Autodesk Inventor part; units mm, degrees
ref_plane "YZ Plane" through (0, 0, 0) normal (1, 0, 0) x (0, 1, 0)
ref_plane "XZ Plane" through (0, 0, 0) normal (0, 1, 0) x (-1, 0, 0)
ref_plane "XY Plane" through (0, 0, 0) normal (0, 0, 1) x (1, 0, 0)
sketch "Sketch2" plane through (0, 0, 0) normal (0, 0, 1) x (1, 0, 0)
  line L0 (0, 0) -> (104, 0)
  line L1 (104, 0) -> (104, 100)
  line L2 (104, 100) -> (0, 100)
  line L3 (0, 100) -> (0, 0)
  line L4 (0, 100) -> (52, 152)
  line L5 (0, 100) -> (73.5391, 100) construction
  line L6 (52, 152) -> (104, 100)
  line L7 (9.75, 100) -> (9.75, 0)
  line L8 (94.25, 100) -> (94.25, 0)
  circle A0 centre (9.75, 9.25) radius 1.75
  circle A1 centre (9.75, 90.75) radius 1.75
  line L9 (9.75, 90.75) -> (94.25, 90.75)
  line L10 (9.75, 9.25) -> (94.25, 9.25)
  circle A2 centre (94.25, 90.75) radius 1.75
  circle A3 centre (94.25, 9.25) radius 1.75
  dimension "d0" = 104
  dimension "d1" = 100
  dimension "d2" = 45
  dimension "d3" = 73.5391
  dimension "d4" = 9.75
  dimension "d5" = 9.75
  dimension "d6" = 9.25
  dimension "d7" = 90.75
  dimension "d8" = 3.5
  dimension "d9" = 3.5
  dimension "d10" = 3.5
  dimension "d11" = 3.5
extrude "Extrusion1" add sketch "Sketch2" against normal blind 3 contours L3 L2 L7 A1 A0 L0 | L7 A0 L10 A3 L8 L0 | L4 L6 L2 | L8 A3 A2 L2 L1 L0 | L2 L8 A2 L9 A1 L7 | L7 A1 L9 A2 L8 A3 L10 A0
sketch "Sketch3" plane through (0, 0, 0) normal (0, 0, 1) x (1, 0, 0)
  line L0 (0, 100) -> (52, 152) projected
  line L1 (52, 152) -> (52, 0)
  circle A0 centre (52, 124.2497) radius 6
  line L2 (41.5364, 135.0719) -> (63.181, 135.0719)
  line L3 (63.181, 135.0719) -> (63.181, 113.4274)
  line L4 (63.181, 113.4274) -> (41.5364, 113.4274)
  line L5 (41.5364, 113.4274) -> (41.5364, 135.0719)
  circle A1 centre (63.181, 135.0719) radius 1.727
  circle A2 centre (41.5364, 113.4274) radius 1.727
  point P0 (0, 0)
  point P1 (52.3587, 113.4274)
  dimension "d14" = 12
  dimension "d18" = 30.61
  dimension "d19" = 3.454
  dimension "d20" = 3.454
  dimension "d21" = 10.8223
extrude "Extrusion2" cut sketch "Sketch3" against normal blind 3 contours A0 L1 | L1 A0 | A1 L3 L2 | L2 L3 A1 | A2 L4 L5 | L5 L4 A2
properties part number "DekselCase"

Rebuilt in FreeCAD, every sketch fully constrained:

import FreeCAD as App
import Part
import Sketcher
Q = App.Units.Quantity


def add_polygon(sketch, points):
    """Adds a closed chain of lines whose ends are joined by coincident constraints."""
    first, n = sketch.GeometryCount, len(points)
    for a, b in zip(points, points[1:] + points[:1]):
        sketch.addGeometry(Part.LineSegment(App.Vector(*a, 0), App.Vector(*b, 0)), False)
    for i in range(n):
        sketch.addConstraint(Sketcher.Constraint("Coincident", first + i, 2, first + (i + 1) % n, 1))

doc = App.newDocument("Part")
params = doc.addObject("Spreadsheet::Sheet", "Params")
for row, (alias, value) in enumerate([
    ("sketch1_diameter", "3.5 mm"),
    ("sketch1_width", "104 mm"),
    ("sketch1_height", "100 mm"),
    ("pad1_length", "3 mm"),
    ("sketch2_diameter", "12 mm"),
    ("pocket1_length", "3 mm"),
], start=1):
    params.set(f"A{row}", alias)
    params.set(f"B{row}", "=" + value)
    params.setAlias(f"B{row}", alias)

body = doc.addObject("PartDesign::Body", "Body")

# Sketch on XY plane
sketch1 = body.newObject("Sketcher::SketchObject", "Sketch")
sketch1.AttachmentSupport = (doc.getObject("XY_Plane"), [""])
sketch1.MapMode = "FlatFace"
add_polygon(sketch1, [(0, 100), (0, 0), (104, 0), (104, 100), (52, 152)])  # lines 0-4
sketch1.addGeometry(Part.Circle(App.Vector(9.8, 90.8, 0), App.Vector(0, 0, 1), 1.8), False)  # 5
sketch1.addGeometry(Part.Circle(App.Vector(9.8, 9.2, 0), App.Vector(0, 0, 1), 1.8), False)  # 6
sketch1.addGeometry(Part.Circle(App.Vector(94.2, 90.8, 0), App.Vector(0, 0, 1), 1.8), False)  # 7
sketch1.addGeometry(Part.Circle(App.Vector(94.2, 9.2, 0), App.Vector(0, 0, 1), 1.8), False)  # 8
sketch1.addConstraint(Sketcher.Constraint("Vertical", 0))
sketch1.addConstraint(Sketcher.Constraint("Horizontal", 1))
sketch1.addConstraint(Sketcher.Constraint("Vertical", 2))
sketch1.addConstraint(Sketcher.Constraint("Coincident", 0, 2, -1, 1))
sketch1.addConstraint(Sketcher.Constraint("Equal", 5, 6))
sketch1.addConstraint(Sketcher.Constraint("Equal", 6, 7))
sketch1.addConstraint(Sketcher.Constraint("Equal", 7, 8))
sketch1.addConstraint(Sketcher.Constraint("Perpendicular", 3, 4))
sketch1.addConstraint(Sketcher.Constraint("Horizontal", 5, 3, 7, 3))
sketch1.addConstraint(Sketcher.Constraint("Horizontal", 6, 3, 8, 3))
sketch1.addConstraint(Sketcher.Constraint("Horizontal", 2, 2, 4, 2))
sketch1.addConstraint(Sketcher.Constraint("Vertical", 5, 3, 6, 3))
sketch1.addConstraint(Sketcher.Constraint("Vertical", 7, 3, 8, 3))
sketch1.addConstraint(Sketcher.Constraint("Equal", 3, 4))
sketch1.addConstraint(Sketcher.Constraint("Diameter", 5, Q("3.5 mm")))
sketch1.addConstraint(Sketcher.Constraint("DistanceX", 1, 1, 1, 2, Q("104 mm")))
sketch1.addConstraint(Sketcher.Constraint("DistanceY", 0, 2, 0, 1, Q("100 mm")))
sketch1.addConstraint(Sketcher.Constraint("DistanceX", -1, 1, 5, 3, Q("9.75 mm")))
sketch1.addConstraint(Sketcher.Constraint("DistanceY", -1, 1, 5, 3, Q("90.75 mm")))
sketch1.addConstraint(Sketcher.Constraint("DistanceY", -1, 1, 6, 3, Q("9.25 mm")))
sketch1.addConstraint(Sketcher.Constraint("DistanceX", 8, 3, 1, 2, Q("9.75 mm")))
sketch1.setExpression("Constraints[19]", "Params.sketch1_diameter")
sketch1.setExpression("Constraints[20]", "Params.sketch1_width")
sketch1.setExpression("Constraints[21]", "Params.sketch1_height")
pad1 = body.newObject("PartDesign::Pad", "Pad")
pad1.Profile = sketch1
pad1.setExpression("Length", "Params.pad1_length")
pad1.Reversed = True

# Sketch on XY plane
sketch2 = body.newObject("Sketcher::SketchObject", "Sketch001")
sketch2.AttachmentSupport = (doc.getObject("XY_Plane"), [""])
sketch2.MapMode = "FlatFace"
sketch2.addGeometry(Part.Circle(App.Vector(52, 124.2, 0), App.Vector(0, 0, 1), 6), False)
sketch2.addGeometry(Part.Circle(App.Vector(63.2, 135.1, 0), App.Vector(0, 0, 1), 1.7), False)
sketch2.addGeometry(Part.Circle(App.Vector(41.5, 113.4, 0), App.Vector(0, 0, 1), 1.7), False)
sketch2.addConstraint(Sketcher.Constraint("Equal", 1, 2))
sketch2.addConstraint(Sketcher.Constraint("Diameter", 0, Q("12 mm")))
sketch2.addConstraint(Sketcher.Constraint("Diameter", 1, Q("3.454 mm")))
sketch2.addConstraint(Sketcher.Constraint("DistanceX", -1, 1, 0, 3, Q("52 mm")))
sketch2.addConstraint(Sketcher.Constraint("DistanceY", 0, 3, 1, 3, Q("10.8222 mm")))
sketch2.addConstraint(Sketcher.Constraint("DistanceY", 2, 3, 0, 3, Q("10.8223 mm")))
sketch2.addConstraint(Sketcher.Constraint("DistanceX", -1, 1, 1, 3, Q("63.181 mm")))
sketch2.addConstraint(Sketcher.Constraint("DistanceY", -1, 1, 1, 3, Q("135.072 mm")))
sketch2.addConstraint(Sketcher.Constraint("DistanceX", -1, 1, 2, 3, Q("41.5364 mm")))
sketch2.setExpression("Constraints[1]", "Params.sketch2_diameter")
pocket1 = body.newObject("PartDesign::Pocket", "Pocket")
pocket1.Profile = sketch2
pocket1.setExpression("Length", "Params.pocket1_length")

doc.recompute()
